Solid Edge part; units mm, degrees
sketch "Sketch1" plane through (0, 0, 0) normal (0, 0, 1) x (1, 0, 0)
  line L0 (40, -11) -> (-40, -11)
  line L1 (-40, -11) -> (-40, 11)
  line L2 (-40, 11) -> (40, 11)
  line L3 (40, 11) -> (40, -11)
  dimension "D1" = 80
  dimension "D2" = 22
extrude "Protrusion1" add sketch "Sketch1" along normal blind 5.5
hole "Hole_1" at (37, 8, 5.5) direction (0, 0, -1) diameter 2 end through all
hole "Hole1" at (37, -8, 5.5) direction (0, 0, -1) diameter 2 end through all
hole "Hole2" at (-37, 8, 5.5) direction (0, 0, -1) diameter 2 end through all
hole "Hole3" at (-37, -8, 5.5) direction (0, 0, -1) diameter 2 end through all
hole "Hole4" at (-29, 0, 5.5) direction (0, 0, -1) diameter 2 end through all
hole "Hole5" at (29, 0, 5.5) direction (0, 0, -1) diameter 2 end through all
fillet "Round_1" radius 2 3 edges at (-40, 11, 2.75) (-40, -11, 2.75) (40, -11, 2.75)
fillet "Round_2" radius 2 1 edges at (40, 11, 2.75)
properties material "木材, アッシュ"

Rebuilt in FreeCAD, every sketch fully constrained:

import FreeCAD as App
import Part
import Sketcher


def edges_at(feature, points):
    """Names of the edges that pass closest to the given points."""
    edges = feature.Shape.Edges
    near = lambda p: min(range(len(edges)), key=lambda i: edges[i].distToShape(Part.Vertex(*p))[0])
    return sorted({f"Edge{near(p) + 1}" for p in points})

doc = App.newDocument("Part")
body = doc.addObject("PartDesign::Body", "Body")

# Sketch on XY plane
sketch1 = body.newObject("Sketcher::SketchObject", "Sketch")
sketch1.AttachmentSupport = (doc.getObject("XY_Plane"), [""])
sketch1.MapMode = "FlatFace"
sketch1.addGeometry([
    Part.LineSegment(App.Vector(-40, -11, 0), App.Vector(40, -11, 0)),
    Part.LineSegment(App.Vector(40, -11, 0), App.Vector(40, 11, 0)),
    Part.LineSegment(App.Vector(40, 11, 0), App.Vector(-40, 11, 0)),
    Part.LineSegment(App.Vector(-40, 11, 0), App.Vector(-40, -11, 0)),
], False)
sketch1.addConstraint([
    Sketcher.Constraint("Coincident", 0, 2, 1, 1),
    Sketcher.Constraint("Coincident", 1, 2, 2, 1),
    Sketcher.Constraint("Coincident", 2, 2, 3, 1),
    Sketcher.Constraint("Coincident", 3, 2, 0, 1),
    Sketcher.Constraint("Horizontal", 0),
    Sketcher.Constraint("Vertical", 1),
    Sketcher.Constraint("Horizontal", 2),
    Sketcher.Constraint("Vertical", 3),
    Sketcher.Constraint("Symmetric", 0, 2, 2, 2, -1, 1),
    Sketcher.Constraint("DistanceX", -1, 1, 0, 2, 40.0),
    Sketcher.Constraint("DistanceY", 1, 1, 1, 2, 22.0),
])
pad1 = body.newObject("PartDesign::Pad", "Pad")
pad1.Profile = sketch1
pad1.Length = 5.5

# Sketch on XY plane
sketch2 = body.newObject("Sketcher::SketchObject", "Sketch001")
sketch2.AttachmentSupport = (doc.getObject("XY_Plane"), [""])
sketch2.MapMode = "FlatFace"
sketch2.AttachmentOffset = App.Placement(App.Vector(0, 0, 5.5), App.Rotation())
sketch2.addGeometry(Part.Circle(App.Vector(37, 8, 0), App.Vector(0, 0, 1), 1), False)
sketch2.addConstraint([
    Sketcher.Constraint("Diameter", 0, 2.0),
    Sketcher.Constraint("DistanceX", -1, 1, 0, 3, 37.0),
    Sketcher.Constraint("DistanceY", -1, 1, 0, 3, 8.0),
])
doc.recompute()
hole = body.newObject("PartDesign::Hole", "Hole")
hole.Profile = sketch2
hole.ThreadType = "None"
hole.Diameter = 2
hole.DepthType = "ThroughAll"

# Sketch on XY plane
sketch3 = body.newObject("Sketcher::SketchObject", "Sketch002")
sketch3.AttachmentSupport = (doc.getObject("XY_Plane"), [""])
sketch3.MapMode = "FlatFace"
sketch3.AttachmentOffset = App.Placement(App.Vector(0, 0, 5.5), App.Rotation())
sketch3.addGeometry(Part.Circle(App.Vector(37, -8, 0), App.Vector(0, 0, 1), 1), False)
sketch3.addConstraint([
    Sketcher.Constraint("Diameter", 0, 2.0),
    Sketcher.Constraint("DistanceX", -1, 1, 0, 3, 37.0),
    Sketcher.Constraint("DistanceY", 0, 3, -1, 1, 8.0),
])
doc.recompute()
hole2 = body.newObject("PartDesign::Hole", "Hole001")
hole2.Profile = sketch3
hole2.ThreadType = "None"
hole2.Diameter = 2
hole2.DepthType = "ThroughAll"

# Sketch on XY plane
sketch4 = body.newObject("Sketcher::SketchObject", "Sketch003")
sketch4.AttachmentSupport = (doc.getObject("XY_Plane"), [""])
sketch4.MapMode = "FlatFace"
sketch4.AttachmentOffset = App.Placement(App.Vector(0, 0, 5.5), App.Rotation())
sketch4.addGeometry(Part.Circle(App.Vector(-37, 8, 0), App.Vector(0, 0, 1), 1), False)
sketch4.addConstraint([
    Sketcher.Constraint("Diameter", 0, 2.0),
    Sketcher.Constraint("DistanceX", 0, 3, -1, 1, 37.0),
    Sketcher.Constraint("DistanceY", -1, 1, 0, 3, 8.0),
])
doc.recompute()
hole3 = body.newObject("PartDesign::Hole", "Hole002")
hole3.Profile = sketch4
hole3.ThreadType = "None"
hole3.Diameter = 2
hole3.DepthType = "ThroughAll"

# Sketch on XY plane
sketch5 = body.newObject("Sketcher::SketchObject", "Sketch004")
sketch5.AttachmentSupport = (doc.getObject("XY_Plane"), [""])
sketch5.MapMode = "FlatFace"
sketch5.AttachmentOffset = App.Placement(App.Vector(0, 0, 5.5), App.Rotation())
sketch5.addGeometry(Part.Circle(App.Vector(-37, -8, 0), App.Vector(0, 0, 1), 1), False)
sketch5.addConstraint([
    Sketcher.Constraint("Diameter", 0, 2.0),
    Sketcher.Constraint("DistanceX", 0, 3, -1, 1, 37.0),
    Sketcher.Constraint("DistanceY", 0, 3, -1, 1, 8.0),
])
doc.recompute()
hole4 = body.newObject("PartDesign::Hole", "Hole003")
hole4.Profile = sketch5
hole4.ThreadType = "None"
hole4.Diameter = 2
hole4.DepthType = "ThroughAll"

# Sketch on XY plane
sketch6 = body.newObject("Sketcher::SketchObject", "Sketch005")
sketch6.AttachmentSupport = (doc.getObject("XY_Plane"), [""])
sketch6.MapMode = "FlatFace"
sketch6.AttachmentOffset = App.Placement(App.Vector(0, 0, 5.5), App.Rotation())
sketch6.addGeometry(Part.Circle(App.Vector(-29, 0, 0), App.Vector(0, 0, 1), 1), False)
sketch6.addConstraint([
    Sketcher.Constraint("PointOnObject", 0, 3, -1),
    Sketcher.Constraint("Diameter", 0, 2.0),
    Sketcher.Constraint("DistanceX", 0, 3, -1, 1, 29.0),
])
doc.recompute()
hole5 = body.newObject("PartDesign::Hole", "Hole004")
hole5.Profile = sketch6
hole5.ThreadType = "None"
hole5.Diameter = 2
hole5.DepthType = "ThroughAll"

# Sketch on XY plane
sketch7 = body.newObject("Sketcher::SketchObject", "Sketch006")
sketch7.AttachmentSupport = (doc.getObject("XY_Plane"), [""])
sketch7.MapMode = "FlatFace"
sketch7.AttachmentOffset = App.Placement(App.Vector(0, 0, 5.5), App.Rotation())
sketch7.addGeometry(Part.Circle(App.Vector(29, 0, 0), App.Vector(0, 0, 1), 1), False)
sketch7.addConstraint([
    Sketcher.Constraint("PointOnObject", 0, 3, -1),
    Sketcher.Constraint("Diameter", 0, 2.0),
    Sketcher.Constraint("DistanceX", -1, 1, 0, 3, 29.0),
])
doc.recompute()
hole6 = body.newObject("PartDesign::Hole", "Hole005")
hole6.Profile = sketch7
hole6.ThreadType = "None"
hole6.Diameter = 2
hole6.DepthType = "ThroughAll"
doc.recompute()

fillet = body.newObject("PartDesign::Fillet", "Fillet")
fillet.Base = (hole6, edges_at(hole6, [(-40, 11, 2.75), (-40, -11, 2.75), (40, -11, 2.75)]))
fillet.Radius = 2
doc.recompute()

fillet2 = body.newObject("PartDesign::Fillet", "Fillet001")
fillet2.Base = (fillet, edges_at(fillet, [(40, 11, 2.75)]))
fillet2.Radius = 2

doc.recompute()
